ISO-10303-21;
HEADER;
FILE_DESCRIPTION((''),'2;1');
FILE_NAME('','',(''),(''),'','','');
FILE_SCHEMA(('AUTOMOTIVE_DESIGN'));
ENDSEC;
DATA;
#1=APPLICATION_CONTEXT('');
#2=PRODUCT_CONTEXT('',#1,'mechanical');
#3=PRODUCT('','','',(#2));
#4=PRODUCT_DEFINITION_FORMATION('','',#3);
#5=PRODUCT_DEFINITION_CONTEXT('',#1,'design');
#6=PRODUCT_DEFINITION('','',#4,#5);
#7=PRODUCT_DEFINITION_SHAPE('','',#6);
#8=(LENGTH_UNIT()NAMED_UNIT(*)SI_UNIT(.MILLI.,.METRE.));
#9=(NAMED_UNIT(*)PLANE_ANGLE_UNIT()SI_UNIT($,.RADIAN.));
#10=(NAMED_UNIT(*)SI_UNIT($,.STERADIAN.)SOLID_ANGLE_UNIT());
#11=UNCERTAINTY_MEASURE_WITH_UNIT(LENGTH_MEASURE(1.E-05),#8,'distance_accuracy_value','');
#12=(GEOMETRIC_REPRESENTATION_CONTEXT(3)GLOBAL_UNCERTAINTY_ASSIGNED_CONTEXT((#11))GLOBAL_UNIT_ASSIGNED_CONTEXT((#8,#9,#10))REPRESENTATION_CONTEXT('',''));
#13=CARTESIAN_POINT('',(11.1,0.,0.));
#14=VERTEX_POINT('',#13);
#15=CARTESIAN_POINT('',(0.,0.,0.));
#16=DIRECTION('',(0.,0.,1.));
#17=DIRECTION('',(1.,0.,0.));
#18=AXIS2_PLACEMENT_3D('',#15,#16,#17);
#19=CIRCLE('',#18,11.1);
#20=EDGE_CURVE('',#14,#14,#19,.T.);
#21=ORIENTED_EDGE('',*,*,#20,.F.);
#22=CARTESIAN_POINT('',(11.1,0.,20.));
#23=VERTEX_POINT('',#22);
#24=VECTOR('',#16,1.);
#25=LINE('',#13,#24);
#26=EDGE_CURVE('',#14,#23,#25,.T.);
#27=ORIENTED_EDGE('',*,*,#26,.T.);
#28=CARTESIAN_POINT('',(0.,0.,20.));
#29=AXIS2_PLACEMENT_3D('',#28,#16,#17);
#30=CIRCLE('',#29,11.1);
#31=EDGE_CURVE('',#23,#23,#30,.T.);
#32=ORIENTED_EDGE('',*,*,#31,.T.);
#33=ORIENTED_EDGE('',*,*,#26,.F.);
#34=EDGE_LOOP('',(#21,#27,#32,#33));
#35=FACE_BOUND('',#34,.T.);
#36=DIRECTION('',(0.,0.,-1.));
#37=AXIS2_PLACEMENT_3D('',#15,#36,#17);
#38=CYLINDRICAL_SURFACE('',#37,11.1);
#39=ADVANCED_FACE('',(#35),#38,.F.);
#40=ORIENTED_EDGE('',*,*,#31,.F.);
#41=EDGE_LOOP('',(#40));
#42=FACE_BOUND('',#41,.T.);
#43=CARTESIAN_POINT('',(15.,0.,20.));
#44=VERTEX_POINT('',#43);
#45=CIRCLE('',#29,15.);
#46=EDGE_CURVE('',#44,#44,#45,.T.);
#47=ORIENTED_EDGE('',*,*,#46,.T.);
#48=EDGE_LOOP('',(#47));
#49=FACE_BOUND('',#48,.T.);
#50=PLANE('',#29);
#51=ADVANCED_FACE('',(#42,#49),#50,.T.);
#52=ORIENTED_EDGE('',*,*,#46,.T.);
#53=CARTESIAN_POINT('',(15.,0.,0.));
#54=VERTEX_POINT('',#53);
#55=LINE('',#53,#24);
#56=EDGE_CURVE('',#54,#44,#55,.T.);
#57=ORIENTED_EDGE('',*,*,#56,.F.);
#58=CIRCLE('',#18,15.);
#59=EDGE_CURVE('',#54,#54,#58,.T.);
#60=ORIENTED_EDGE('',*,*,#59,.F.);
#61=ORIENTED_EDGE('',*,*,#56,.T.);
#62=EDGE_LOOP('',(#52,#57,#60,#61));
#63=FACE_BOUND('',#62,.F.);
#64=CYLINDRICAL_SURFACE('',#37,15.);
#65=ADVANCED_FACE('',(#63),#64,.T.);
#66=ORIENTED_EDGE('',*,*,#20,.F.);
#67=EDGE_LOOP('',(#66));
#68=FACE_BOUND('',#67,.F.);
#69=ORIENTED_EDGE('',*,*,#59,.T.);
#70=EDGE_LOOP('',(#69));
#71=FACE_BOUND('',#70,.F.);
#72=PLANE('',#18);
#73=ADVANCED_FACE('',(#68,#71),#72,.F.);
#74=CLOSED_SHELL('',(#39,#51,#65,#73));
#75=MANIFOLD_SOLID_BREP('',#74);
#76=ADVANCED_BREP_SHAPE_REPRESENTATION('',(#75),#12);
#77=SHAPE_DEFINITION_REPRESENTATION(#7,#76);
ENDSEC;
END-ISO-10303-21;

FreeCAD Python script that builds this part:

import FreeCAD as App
import Part
import Sketcher
from FreeCAD import Vector
Q = App.Units.Quantity

doc = App.newDocument("Part")
body = doc.addObject("PartDesign::Body", "Body")

# Sketch on XY plane
sketch1 = body.newObject("Sketcher::SketchObject", "Sketch")
sketch1.AttachmentSupport = (doc.getObject("XY_Plane"), [""])
sketch1.MapMode = "FlatFace"
sketch1.addGeometry([
    Part.Circle(Vector(0, 0, 0), Vector(0, 0, 1), 15),
    Part.Circle(Vector(0, 0, 0), Vector(0, 0, 1), 11),
], False)
sketch1.addConstraint([
    Sketcher.Constraint("Coincident", 0, 3, -1, 1),
    Sketcher.Constraint("Coincident", 1, 3, -1, 1),
    Sketcher.Constraint("Diameter", 0, Q("30 mm")),
    Sketcher.Constraint("Diameter", 1, Q("22.2 mm")),
])
pad1 = body.newObject("PartDesign::Pad", "Pad")
pad1.Profile = sketch1
pad1.Length = 20

doc.recompute()
